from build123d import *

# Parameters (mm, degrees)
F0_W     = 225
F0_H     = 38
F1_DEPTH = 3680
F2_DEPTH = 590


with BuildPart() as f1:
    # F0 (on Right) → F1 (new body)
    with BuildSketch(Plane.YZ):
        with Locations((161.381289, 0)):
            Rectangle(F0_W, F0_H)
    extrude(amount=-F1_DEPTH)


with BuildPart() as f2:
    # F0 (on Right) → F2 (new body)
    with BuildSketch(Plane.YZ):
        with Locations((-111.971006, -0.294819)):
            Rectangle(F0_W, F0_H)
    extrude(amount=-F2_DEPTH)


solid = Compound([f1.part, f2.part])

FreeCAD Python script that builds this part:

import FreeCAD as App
import Part
import Sketcher
Q = App.Units.Quantity


def add_polygon(sketch, points):
    """Adds a closed chain of lines whose ends are joined by coincident constraints."""
    first, n = sketch.GeometryCount, len(points)
    for a, b in zip(points, points[1:] + points[:1]):
        sketch.addGeometry(Part.LineSegment(App.Vector(*a, 0), App.Vector(*b, 0)), False)
    for i in range(n):
        sketch.addConstraint(Sketcher.Constraint("Coincident", first + i, 2, first + (i + 1) % n, 1))

doc = App.newDocument("Part")
body = doc.addObject("PartDesign::Body", "Body")

# Sketch on YZ plane
sketch1 = body.newObject("Sketcher::SketchObject", "Sketch")
sketch1.AttachmentSupport = (doc.getObject("YZ_Plane"), [""])
sketch1.MapMode = "FlatFace"
add_polygon(sketch1, [(48.881289, 19), (48.881289, -19), (273.881289, -19), (273.881289, 19)])  # lines 0-3
sketch1.addConstraint([
    Sketcher.Constraint("Vertical", 0),
    Sketcher.Constraint("Horizontal", 1),
    Sketcher.Constraint("Vertical", 2),
    Sketcher.Constraint("Horizontal", 3),
    Sketcher.Constraint("DistanceX", 1, 1, 1, 2, Q("225 mm")),
    Sketcher.Constraint("DistanceY", 0, 2, 0, 1, Q("38 mm")),
    Sketcher.Constraint("DistanceY", 0, 2, -1, 1, Q("19 mm")),
    Sketcher.Constraint("DistanceX", -1, 1, 0, 2, Q("48.881289 mm")),
])
pad1 = body.newObject("PartDesign::Pad", "Pad")
pad1.Profile = sketch1
pad1.Length = 3680
pad1.Reversed = True
body2 = doc.addObject("PartDesign::Body", "Body001")

# Sketch on YZ plane
sketch2 = body2.newObject("Sketcher::SketchObject", "Sketch001")
sketch2.AttachmentSupport = (doc.getObject("YZ_Plane001"), [""])
sketch2.MapMode = "FlatFace"
add_polygon(sketch2, [(-224.471006, 18.705181), (-224.471006, -19.294819), (0.528994, -19.294819), (0.528994, 18.705181)])  # lines 0-3
sketch2.addConstraint([
    Sketcher.Constraint("Vertical", 0),
    Sketcher.Constraint("Horizontal", 1),
    Sketcher.Constraint("Vertical", 2),
    Sketcher.Constraint("Horizontal", 3),
    Sketcher.Constraint("DistanceX", 1, 1, 1, 2, Q("225 mm")),
    Sketcher.Constraint("DistanceY", 0, 2, 0, 1, Q("38 mm")),
    Sketcher.Constraint("DistanceY", 0, 2, -1, 1, Q("19.294819 mm")),
    Sketcher.Constraint("DistanceX", 0, 2, -1, 1, Q("224.471006 mm")),
])
pad2 = body2.newObject("PartDesign::Pad", "Pad001")
pad2.Profile = sketch2
pad2.Length = 590
pad2.Reversed = True

doc.recompute()
